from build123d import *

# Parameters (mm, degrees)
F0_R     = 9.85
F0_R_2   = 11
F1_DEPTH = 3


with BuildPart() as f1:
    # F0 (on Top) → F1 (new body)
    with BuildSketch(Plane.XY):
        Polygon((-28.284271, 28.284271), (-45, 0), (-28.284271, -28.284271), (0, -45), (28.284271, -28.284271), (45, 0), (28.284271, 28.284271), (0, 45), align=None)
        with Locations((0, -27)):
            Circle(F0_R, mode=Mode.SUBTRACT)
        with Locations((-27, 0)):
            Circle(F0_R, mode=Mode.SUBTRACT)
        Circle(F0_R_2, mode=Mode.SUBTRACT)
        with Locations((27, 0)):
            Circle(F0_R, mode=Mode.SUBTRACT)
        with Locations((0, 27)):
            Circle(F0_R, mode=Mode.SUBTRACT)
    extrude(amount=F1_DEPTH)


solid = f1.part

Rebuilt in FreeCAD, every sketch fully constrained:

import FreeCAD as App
import Part
import Sketcher
Q = App.Units.Quantity

doc = App.newDocument("Part")
body = doc.addObject("PartDesign::Body", "Body")

sketch1 = body.newObject("Sketcher::SketchObject", "Sketch")
sketch1.AttachmentSupport = (doc.getObject("XY_Plane"), [""])
sketch1.MapMode = "FlatFace"
sketch1.addGeometry(Part.LineSegment(App.Vector(-28, 28, 0), App.Vector(-45, 0, 0)), False)
sketch1.addGeometry(Part.LineSegment(App.Vector(-45, 0, 0), App.Vector(-28, -28, 0)), False)
sketch1.addGeometry(Part.LineSegment(App.Vector(-28, -28, 0), App.Vector(0, -45, 0)), False)
sketch1.addGeometry(Part.LineSegment(App.Vector(0, -45, 0), App.Vector(28, -28, 0)), False)
sketch1.addGeometry(Part.LineSegment(App.Vector(28, -28, 0), App.Vector(45, 0, 0)), False)
sketch1.addGeometry(Part.LineSegment(App.Vector(45, 0, 0), App.Vector(28, 28, 0)), False)
sketch1.addGeometry(Part.LineSegment(App.Vector(28, 28, 0), App.Vector(0, 45, 0)), False)
sketch1.addGeometry(Part.LineSegment(App.Vector(0, 45, 0), App.Vector(-28, 28, 0)), False)
sketch1.addGeometry(Part.Circle(App.Vector(0, -27, 0), App.Vector(0, 0, 1), 10), False)
sketch1.addGeometry(Part.Circle(App.Vector(-27, 0, 0), App.Vector(0, 0, 1), 10), False)
sketch1.addGeometry(Part.Circle(App.Vector(0, 0, 0), App.Vector(0, 0, 1), 11), False)
sketch1.addGeometry(Part.Circle(App.Vector(27, 0, 0), App.Vector(0, 0, 1), 10), False)
sketch1.addGeometry(Part.Circle(App.Vector(0, 27, 0), App.Vector(0, 0, 1), 10), False)
sketch1.addConstraint(Sketcher.Constraint("Coincident", 0, 2, 1, 1))
sketch1.addConstraint(Sketcher.Constraint("Coincident", 1, 2, 2, 1))
sketch1.addConstraint(Sketcher.Constraint("Coincident", 2, 2, 3, 1))
sketch1.addConstraint(Sketcher.Constraint("Coincident", 3, 2, 4, 1))
sketch1.addConstraint(Sketcher.Constraint("Coincident", 4, 2, 5, 1))
sketch1.addConstraint(Sketcher.Constraint("Coincident", 5, 2, 6, 1))
sketch1.addConstraint(Sketcher.Constraint("Coincident", 6, 2, 7, 1))
sketch1.addConstraint(Sketcher.Constraint("Coincident", 7, 2, 0, 1))
sketch1.addConstraint(Sketcher.Constraint("Coincident", 10, 3, -1, 1))
sketch1.addConstraint(Sketcher.Constraint("Equal", 8, 9))
sketch1.addConstraint(Sketcher.Constraint("Equal", 9, 11))
sketch1.addConstraint(Sketcher.Constraint("Equal", 11, 12))
sketch1.addConstraint(Sketcher.Constraint("Symmetric", 9, 3, 11, 3, -1, 1))
sketch1.addConstraint(Sketcher.Constraint("Symmetric", 8, 3, 12, 3, -1, 1))
sketch1.addConstraint(Sketcher.Constraint("Symmetric", 0, 2, 4, 2, -1, 1))
sketch1.addConstraint(Sketcher.Constraint("Symmetric", 1, 2, 5, 2, -1, 1))
sketch1.addConstraint(Sketcher.Constraint("Symmetric", 2, 2, 6, 2, -1, 1))
sketch1.addConstraint(Sketcher.Constraint("Symmetric", 3, 2, 7, 2, -1, 1))
sketch1.addConstraint(Sketcher.Constraint("Symmetric", 1, 2, 3, 2, -2))
sketch1.addConstraint(Sketcher.Constraint("PointOnObject", 8, 3, -2))
sketch1.addConstraint(Sketcher.Constraint("PointOnObject", 9, 3, -1))
sketch1.addConstraint(Sketcher.Constraint("PointOnObject", 0, 2, -1))
sketch1.addConstraint(Sketcher.Constraint("PointOnObject", 2, 2, -2))
sketch1.addConstraint(Sketcher.Constraint("Perpendicular", 0, 2))
sketch1.addConstraint(Sketcher.Constraint("Equal", 1, 2))
sketch1.addConstraint(Sketcher.Constraint("Diameter", 10, Q("22 mm")))
sketch1.addConstraint(Sketcher.Constraint("Diameter", 8, Q("19.7 mm")))
sketch1.addConstraint(Sketcher.Constraint("DistanceY", 8, 3, -1, 1, Q("27 mm")))
sketch1.addConstraint(Sketcher.Constraint("DistanceX", 9, 3, -1, 1, Q("27 mm")))
sketch1.addConstraint(Sketcher.Constraint("DistanceX", 0, 2, -1, 1, Q("45 mm")))
sketch1.addConstraint(Sketcher.Constraint("Distance", 0, Q("32.854461 mm")))
pad1 = body.newObject("PartDesign::Pad", "Pad")
pad1.Profile = sketch1
pad1.Length = 3

doc.recompute()
